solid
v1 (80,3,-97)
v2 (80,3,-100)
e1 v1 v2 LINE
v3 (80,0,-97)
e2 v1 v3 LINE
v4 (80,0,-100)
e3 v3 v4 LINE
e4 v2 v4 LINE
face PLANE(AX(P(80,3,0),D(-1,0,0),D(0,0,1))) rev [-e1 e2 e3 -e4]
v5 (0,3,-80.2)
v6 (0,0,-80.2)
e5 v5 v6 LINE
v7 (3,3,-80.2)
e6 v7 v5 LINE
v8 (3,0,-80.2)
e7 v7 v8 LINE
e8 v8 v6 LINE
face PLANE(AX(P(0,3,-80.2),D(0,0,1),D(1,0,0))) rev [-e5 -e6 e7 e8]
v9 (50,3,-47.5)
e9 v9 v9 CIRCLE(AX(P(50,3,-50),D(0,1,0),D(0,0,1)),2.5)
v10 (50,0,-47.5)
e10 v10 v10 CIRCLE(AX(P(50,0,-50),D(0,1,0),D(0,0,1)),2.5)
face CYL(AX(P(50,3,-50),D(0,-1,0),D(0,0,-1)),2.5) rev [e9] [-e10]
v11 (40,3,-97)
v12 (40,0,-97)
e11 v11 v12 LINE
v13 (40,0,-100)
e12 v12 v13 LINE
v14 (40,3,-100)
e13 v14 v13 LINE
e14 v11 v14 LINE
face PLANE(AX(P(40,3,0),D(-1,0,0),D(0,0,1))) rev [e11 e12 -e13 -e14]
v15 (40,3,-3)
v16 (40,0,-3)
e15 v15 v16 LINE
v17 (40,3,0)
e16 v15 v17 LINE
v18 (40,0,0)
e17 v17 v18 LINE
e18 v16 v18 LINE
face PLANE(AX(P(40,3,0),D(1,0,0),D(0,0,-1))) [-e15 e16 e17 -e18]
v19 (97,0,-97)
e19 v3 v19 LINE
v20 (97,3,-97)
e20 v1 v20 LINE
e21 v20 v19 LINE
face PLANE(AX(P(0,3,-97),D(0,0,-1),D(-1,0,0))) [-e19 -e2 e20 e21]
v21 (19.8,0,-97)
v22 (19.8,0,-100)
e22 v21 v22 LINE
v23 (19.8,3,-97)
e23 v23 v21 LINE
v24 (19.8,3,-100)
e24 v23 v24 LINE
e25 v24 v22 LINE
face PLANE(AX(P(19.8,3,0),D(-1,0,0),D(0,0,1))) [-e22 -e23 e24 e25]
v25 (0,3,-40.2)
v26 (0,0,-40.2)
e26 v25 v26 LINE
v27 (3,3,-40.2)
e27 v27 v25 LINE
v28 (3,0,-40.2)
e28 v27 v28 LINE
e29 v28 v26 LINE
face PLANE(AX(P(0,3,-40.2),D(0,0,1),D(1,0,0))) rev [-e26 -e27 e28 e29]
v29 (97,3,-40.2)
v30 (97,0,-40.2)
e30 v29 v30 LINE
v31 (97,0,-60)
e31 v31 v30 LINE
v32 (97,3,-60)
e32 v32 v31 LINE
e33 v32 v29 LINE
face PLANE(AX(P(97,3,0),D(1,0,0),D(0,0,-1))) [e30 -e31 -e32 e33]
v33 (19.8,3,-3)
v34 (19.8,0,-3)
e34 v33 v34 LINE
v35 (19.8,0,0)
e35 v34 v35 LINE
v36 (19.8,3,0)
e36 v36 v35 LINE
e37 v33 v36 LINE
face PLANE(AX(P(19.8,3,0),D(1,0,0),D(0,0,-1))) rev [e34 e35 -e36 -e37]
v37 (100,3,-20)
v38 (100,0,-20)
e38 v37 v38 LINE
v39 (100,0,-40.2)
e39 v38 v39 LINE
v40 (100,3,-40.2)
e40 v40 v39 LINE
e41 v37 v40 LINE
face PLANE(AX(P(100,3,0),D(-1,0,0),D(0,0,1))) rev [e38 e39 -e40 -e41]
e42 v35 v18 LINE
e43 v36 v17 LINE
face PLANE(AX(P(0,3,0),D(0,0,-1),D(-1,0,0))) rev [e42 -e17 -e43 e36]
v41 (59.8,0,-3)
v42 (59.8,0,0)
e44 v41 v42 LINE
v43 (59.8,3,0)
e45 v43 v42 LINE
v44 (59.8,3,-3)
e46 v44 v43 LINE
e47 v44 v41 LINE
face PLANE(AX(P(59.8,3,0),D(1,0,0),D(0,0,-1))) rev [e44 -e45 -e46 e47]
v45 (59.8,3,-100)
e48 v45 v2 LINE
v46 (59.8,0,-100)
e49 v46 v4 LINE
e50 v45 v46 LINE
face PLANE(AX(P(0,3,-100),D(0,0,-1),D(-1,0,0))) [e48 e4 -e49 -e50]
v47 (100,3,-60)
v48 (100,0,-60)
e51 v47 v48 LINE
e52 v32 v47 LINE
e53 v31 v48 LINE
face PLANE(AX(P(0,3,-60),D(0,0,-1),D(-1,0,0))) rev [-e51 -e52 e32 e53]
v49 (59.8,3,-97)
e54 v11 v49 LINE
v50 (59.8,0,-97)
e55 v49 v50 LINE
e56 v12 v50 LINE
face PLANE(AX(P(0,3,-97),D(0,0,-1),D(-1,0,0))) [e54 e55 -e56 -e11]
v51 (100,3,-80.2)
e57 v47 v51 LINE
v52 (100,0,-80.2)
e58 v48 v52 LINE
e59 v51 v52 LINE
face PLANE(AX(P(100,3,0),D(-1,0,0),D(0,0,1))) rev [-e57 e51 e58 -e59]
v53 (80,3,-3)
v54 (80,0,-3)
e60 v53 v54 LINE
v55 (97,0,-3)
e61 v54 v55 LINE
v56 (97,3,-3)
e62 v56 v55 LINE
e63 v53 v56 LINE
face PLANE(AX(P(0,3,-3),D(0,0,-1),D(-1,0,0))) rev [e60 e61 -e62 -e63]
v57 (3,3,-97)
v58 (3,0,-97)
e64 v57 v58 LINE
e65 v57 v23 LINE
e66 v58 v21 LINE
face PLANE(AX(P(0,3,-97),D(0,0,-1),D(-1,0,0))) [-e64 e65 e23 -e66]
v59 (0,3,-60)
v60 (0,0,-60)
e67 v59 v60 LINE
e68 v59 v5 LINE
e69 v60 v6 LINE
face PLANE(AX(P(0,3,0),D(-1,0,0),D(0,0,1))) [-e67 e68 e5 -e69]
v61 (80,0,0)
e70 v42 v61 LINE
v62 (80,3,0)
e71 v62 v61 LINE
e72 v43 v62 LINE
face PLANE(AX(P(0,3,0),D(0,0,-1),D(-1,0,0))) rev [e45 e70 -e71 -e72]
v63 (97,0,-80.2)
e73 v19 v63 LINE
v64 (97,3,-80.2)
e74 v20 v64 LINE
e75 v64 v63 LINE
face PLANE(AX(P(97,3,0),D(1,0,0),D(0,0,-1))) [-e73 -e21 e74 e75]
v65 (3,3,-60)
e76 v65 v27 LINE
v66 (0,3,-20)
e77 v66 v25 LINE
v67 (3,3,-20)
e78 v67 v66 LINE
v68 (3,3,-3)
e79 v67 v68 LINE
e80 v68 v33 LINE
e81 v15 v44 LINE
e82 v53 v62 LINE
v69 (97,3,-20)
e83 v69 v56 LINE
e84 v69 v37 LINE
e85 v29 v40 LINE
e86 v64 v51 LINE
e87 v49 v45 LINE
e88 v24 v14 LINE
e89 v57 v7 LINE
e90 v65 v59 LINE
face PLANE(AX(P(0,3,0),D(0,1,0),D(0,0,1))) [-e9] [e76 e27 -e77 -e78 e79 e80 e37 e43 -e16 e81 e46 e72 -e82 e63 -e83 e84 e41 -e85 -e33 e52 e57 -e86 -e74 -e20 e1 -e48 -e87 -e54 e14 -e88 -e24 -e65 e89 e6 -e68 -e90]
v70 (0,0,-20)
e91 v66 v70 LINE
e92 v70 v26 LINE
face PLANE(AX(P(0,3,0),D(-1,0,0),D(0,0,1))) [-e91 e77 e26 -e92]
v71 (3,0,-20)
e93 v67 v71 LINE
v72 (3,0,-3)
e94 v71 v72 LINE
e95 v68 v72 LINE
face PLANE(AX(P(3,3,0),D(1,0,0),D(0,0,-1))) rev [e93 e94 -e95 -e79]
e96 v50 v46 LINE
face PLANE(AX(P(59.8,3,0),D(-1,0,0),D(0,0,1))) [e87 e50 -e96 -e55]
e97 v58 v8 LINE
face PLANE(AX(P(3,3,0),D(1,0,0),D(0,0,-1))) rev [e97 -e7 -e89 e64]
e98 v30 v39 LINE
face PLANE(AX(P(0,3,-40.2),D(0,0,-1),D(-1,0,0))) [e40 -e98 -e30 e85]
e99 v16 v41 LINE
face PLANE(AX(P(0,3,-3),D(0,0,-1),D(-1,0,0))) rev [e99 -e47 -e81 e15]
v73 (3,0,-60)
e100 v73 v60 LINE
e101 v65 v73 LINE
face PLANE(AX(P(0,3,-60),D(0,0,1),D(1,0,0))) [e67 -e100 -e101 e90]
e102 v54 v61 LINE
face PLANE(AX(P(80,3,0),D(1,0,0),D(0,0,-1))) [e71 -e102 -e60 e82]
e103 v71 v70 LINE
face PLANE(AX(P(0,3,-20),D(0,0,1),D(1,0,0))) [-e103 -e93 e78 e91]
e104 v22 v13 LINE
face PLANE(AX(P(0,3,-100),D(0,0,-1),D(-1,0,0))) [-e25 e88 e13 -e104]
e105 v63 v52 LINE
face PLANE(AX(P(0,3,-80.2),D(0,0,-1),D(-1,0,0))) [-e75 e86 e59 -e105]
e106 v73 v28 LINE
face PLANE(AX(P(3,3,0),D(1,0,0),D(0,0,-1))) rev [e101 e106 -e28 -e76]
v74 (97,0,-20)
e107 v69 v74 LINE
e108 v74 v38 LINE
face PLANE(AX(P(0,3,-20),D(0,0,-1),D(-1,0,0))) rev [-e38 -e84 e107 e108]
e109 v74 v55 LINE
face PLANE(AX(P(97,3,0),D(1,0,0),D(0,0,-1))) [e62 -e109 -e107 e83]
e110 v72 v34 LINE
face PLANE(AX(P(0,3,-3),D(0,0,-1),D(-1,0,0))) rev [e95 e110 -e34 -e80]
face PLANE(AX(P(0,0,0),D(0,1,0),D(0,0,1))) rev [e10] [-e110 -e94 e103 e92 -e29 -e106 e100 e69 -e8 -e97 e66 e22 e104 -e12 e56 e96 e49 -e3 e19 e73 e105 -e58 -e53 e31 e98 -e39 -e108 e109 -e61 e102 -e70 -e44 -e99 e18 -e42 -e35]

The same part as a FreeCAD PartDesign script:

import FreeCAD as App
import Part
import Sketcher

V = App.Vector
Q = App.Units.Quantity


def add_polygon(sketch, points):
    """Adds a closed chain of lines whose ends are joined by coincident constraints."""
    first, n = sketch.GeometryCount, len(points)
    for a, b in zip(points, points[1:] + points[:1]):
        sketch.addGeometry(Part.LineSegment(App.Vector(*a, 0), App.Vector(*b, 0)), False)
    for i in range(n):
        sketch.addConstraint(Sketcher.Constraint("Coincident", first + i, 2, first + (i + 1) % n, 1))

doc = App.newDocument("Part")
body = doc.addObject("PartDesign::Body", "Body")

# Sketch on XZ plane
sketch1 = body.newObject("Sketcher::SketchObject", "Sketch")
sketch1.AttachmentSupport = (doc.getObject("XZ_Plane"), [""])
sketch1.MapMode = "FlatFace"
add_polygon(sketch1, [(59.8, -97), (40, -97), (40, -100), (19.8, -100), (19.8, -97), (3, -97), (3, -80.2), (0, -80.2), (0, -60), (3, -60), (3, -40.2), (0, -40.2), (0, -20), (3, -20), (3, -3), (19.8, -3), (19.8, 0), (40, 0), (40, -3), (59.8, -3), (59.8, 0), (80, 0), (80, -3), (97, -3), (97, -20), (100, -20), (100, -40.2), (97, -40.2), (97, -60), (100, -60), (100, -80.2), (97, -80.2), (97, -97), (80, -97), (80, -100), (59.8, -100)])  # lines 0-35
sketch1.addGeometry(Part.Circle(V(50, -50, 0), V(0, 0, 1), 2.5), False)  # 36
sketch1.addConstraint([
    Sketcher.Constraint("Horizontal", 0),
    Sketcher.Constraint("Vertical", 1),
    Sketcher.Constraint("Horizontal", 2),
    Sketcher.Constraint("Vertical", 3),
    Sketcher.Constraint("Horizontal", 4),
    Sketcher.Constraint("Vertical", 5),
    Sketcher.Constraint("Horizontal", 6),
    Sketcher.Constraint("Vertical", 7),
    Sketcher.Constraint("Horizontal", 8),
    Sketcher.Constraint("Vertical", 9),
    Sketcher.Constraint("Horizontal", 10),
    Sketcher.Constraint("Vertical", 11),
    Sketcher.Constraint("Horizontal", 12),
    Sketcher.Constraint("Vertical", 13),
    Sketcher.Constraint("Horizontal", 14),
    Sketcher.Constraint("Vertical", 15),
    Sketcher.Constraint("Horizontal", 16),
    Sketcher.Constraint("Vertical", 17),
    Sketcher.Constraint("Horizontal", 18),
    Sketcher.Constraint("Vertical", 19),
    Sketcher.Constraint("Horizontal", 20),
    Sketcher.Constraint("Vertical", 21),
    Sketcher.Constraint("Horizontal", 22),
    Sketcher.Constraint("Vertical", 23),
    Sketcher.Constraint("Horizontal", 24),
    Sketcher.Constraint("Vertical", 25),
    Sketcher.Constraint("Horizontal", 26),
    Sketcher.Constraint("Vertical", 27),
    Sketcher.Constraint("Horizontal", 28),
    Sketcher.Constraint("Vertical", 29),
    Sketcher.Constraint("Horizontal", 30),
    Sketcher.Constraint("Vertical", 31),
    Sketcher.Constraint("Horizontal", 32),
    Sketcher.Constraint("Vertical", 33),
    Sketcher.Constraint("Horizontal", 34),
    Sketcher.Constraint("Vertical", 35),
    Sketcher.Constraint("PointOnObject", 6, 2, -2),
    Sketcher.Constraint("PointOnObject", 10, 2, -2),
    Sketcher.Constraint("PointOnObject", 15, 2, -1),
    Sketcher.Constraint("PointOnObject", 19, 2, -1),
    Sketcher.Constraint("Horizontal", 0, 2, 3, 2),
    Sketcher.Constraint("Horizontal", 14, 2, 17, 2),
    Sketcher.Constraint("Horizontal", 18, 2, 21, 2),
    Sketcher.Constraint("Horizontal", 12, 2, 23, 2),
    Sketcher.Constraint("Horizontal", 10, 2, 25, 2),
    Sketcher.Constraint("Horizontal", 8, 2, 27, 2),
    Sketcher.Constraint("Horizontal", 6, 2, 29, 2),
    Sketcher.Constraint("Horizontal", 4, 2, 31, 2),
    Sketcher.Constraint("Horizontal", 2, 2, 33, 2),
    Sketcher.Constraint("Vertical", 5, 2, 8, 2),
    Sketcher.Constraint("Vertical", 9, 2, 12, 2),
    Sketcher.Constraint("Vertical", 3, 2, 14, 2),
    Sketcher.Constraint("Vertical", 1, 2, 16, 2),
    Sketcher.Constraint("Vertical", 23, 2, 26, 2),
    Sketcher.Constraint("Vertical", 25, 2, 28, 2),
    Sketcher.Constraint("Vertical", 27, 2, 30, 2),
    Sketcher.Constraint("Vertical", 21, 2, 32, 2),
    Sketcher.Constraint("Vertical", 19, 2, 34, 2),
    Sketcher.Constraint("Equal", 16, 20),
    Sketcher.Constraint("Equal", 12, 24),
    Sketcher.Constraint("Equal", 30, 1),
    Sketcher.Constraint("Equal", 14, 5),
    Sketcher.Constraint("Equal", 34, 7),
    Sketcher.Constraint("Equal", 18, 9),
    Sketcher.Constraint("Equal", 7, 11),
    Sketcher.Constraint("Equal", 32, 13),
    Sketcher.Constraint("Equal", 3, 15),
    Sketcher.Constraint("Diameter", 36, Q("5 mm")),
    Sketcher.Constraint("DistanceX", 6, 2, 6, 1, Q("3 mm")),
    Sketcher.Constraint("DistanceX", 22, 1, 22, 2, Q("17 mm")),
    Sketcher.Constraint("DistanceX", 0, 2, 0, 1, Q("19.8 mm")),
    Sketcher.Constraint("DistanceX", 2, 2, 2, 1, Q("20.2 mm")),
    Sketcher.Constraint("DistanceX", 4, 2, 4, 1, Q("16.8 mm")),
    Sketcher.Constraint("DistanceX", -1, 1, 36, 3, Q("50 mm")),
    Sketcher.Constraint("DistanceY", 36, 3, -1, 1, Q("50 mm")),
])
pad1 = body.newObject("PartDesign::Pad", "Pad")
pad1.Profile = sketch1
pad1.Length = 3
pad1.Reversed = True

doc.recompute()
